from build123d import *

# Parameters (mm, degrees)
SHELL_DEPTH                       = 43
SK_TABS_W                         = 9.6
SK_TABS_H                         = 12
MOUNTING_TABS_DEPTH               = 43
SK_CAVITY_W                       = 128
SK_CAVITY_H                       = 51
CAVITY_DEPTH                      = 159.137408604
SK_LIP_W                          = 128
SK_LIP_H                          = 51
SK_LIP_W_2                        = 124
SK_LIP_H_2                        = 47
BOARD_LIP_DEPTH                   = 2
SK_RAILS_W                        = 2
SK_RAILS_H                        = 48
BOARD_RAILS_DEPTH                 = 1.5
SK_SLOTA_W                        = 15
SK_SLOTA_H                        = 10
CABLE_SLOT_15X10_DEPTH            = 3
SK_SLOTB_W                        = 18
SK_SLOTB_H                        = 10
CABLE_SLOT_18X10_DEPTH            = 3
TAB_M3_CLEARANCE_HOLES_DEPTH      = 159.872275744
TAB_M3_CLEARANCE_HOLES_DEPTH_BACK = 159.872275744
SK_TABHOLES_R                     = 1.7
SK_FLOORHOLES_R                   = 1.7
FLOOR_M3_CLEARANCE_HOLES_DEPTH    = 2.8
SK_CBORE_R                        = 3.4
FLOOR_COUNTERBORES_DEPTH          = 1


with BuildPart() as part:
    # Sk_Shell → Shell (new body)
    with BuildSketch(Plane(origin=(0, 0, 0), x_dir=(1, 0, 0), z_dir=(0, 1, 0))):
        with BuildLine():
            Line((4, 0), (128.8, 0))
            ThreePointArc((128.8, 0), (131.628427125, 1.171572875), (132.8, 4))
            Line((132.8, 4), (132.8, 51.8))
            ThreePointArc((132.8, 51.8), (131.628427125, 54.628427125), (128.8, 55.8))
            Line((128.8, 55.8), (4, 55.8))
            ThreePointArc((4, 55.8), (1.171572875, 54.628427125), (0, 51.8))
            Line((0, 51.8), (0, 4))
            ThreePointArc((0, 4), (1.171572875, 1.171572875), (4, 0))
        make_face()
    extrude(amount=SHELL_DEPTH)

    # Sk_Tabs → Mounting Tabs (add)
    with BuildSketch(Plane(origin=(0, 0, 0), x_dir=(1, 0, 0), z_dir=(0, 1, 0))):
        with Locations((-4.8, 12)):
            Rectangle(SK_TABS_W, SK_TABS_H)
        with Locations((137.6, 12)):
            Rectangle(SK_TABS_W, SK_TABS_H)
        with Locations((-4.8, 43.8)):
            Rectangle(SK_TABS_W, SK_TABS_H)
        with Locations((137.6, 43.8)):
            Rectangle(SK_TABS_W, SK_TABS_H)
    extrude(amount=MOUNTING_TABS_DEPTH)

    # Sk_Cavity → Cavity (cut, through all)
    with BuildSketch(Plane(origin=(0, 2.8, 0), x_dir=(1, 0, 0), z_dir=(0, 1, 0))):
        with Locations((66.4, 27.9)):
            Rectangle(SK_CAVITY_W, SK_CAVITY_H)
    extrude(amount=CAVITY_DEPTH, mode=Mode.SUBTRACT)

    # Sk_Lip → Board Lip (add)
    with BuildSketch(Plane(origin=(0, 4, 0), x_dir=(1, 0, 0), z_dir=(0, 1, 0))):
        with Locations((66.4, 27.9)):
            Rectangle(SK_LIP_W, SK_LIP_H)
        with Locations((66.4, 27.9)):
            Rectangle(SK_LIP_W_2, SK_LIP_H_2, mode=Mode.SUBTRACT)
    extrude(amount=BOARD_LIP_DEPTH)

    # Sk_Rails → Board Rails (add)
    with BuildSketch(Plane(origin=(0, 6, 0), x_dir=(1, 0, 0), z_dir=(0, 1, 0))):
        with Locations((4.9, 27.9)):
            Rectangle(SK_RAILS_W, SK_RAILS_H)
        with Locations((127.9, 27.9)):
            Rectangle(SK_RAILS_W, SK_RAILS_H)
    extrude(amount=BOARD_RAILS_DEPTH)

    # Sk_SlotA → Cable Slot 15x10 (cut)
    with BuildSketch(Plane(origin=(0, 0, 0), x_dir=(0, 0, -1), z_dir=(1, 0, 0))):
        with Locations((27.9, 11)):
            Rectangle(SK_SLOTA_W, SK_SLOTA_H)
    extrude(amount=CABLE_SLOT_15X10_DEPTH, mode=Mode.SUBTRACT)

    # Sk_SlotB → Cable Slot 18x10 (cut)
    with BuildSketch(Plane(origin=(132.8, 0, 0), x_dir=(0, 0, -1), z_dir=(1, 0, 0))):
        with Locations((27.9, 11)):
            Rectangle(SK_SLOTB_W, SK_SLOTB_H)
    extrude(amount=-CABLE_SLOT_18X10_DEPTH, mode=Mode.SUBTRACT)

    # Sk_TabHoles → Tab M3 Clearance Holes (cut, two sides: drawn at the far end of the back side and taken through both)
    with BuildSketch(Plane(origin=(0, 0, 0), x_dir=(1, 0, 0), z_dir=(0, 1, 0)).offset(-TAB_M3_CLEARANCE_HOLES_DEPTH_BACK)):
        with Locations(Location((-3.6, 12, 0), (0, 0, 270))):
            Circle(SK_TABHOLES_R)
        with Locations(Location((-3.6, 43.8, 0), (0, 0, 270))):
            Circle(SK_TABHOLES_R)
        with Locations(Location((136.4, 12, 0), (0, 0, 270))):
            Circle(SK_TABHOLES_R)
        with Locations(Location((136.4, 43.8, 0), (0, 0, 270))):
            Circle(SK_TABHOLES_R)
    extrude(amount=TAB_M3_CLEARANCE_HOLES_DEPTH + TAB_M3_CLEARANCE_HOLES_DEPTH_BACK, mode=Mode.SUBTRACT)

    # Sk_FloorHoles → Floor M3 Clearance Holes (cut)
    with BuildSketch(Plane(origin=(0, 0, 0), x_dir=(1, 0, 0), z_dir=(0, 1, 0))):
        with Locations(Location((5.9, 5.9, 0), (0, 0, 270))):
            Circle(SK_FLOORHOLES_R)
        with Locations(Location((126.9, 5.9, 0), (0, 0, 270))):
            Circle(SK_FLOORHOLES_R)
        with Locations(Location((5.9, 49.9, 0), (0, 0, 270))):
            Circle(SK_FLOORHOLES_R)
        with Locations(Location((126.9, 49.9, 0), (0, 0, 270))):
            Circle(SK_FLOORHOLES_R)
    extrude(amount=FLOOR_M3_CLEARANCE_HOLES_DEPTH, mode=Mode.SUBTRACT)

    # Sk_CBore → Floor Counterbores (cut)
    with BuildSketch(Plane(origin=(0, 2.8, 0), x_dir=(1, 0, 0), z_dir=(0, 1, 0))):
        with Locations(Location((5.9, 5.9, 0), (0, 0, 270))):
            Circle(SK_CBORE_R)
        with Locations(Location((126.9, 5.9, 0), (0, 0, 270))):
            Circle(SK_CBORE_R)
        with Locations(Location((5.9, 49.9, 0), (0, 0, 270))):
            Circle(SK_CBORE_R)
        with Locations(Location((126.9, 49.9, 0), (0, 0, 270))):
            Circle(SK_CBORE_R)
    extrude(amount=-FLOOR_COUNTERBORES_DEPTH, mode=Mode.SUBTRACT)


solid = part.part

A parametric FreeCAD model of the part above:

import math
import FreeCAD as App
import Part
import Sketcher

V = App.Vector
Q = App.Units.Quantity

doc = App.newDocument("Part")
body = doc.addObject("PartDesign::Body", "Body")

# Sketch on XZ plane
sketch1 = body.newObject("Sketcher::SketchObject", "Sketch")
sketch1.AttachmentSupport = (doc.getObject("XZ_Plane"), [""])
sketch1.MapMode = "FlatFace"
sketch1.addGeometry([
    Part.LineSegment(V(4, 0, 0), V(128.8, 0, 0)),  # 0
    Part.ArcOfCircle(Part.Circle(V(128.8, -4, 0), V(0, 0, 1), 4), math.radians(0), math.radians(90)),  # 1
    Part.LineSegment(V(132.8, -4, 0), V(132.8, -51.8, 0)),  # 2
    Part.ArcOfCircle(Part.Circle(V(128.8, -51.8, 0), V(0, 0, 1), 4), math.radians(-90), math.radians(0)),  # 3
    Part.LineSegment(V(128.8, -55.8, 0), V(4, -55.8, 0)),  # 4
    Part.ArcOfCircle(Part.Circle(V(4, -51.8, 0), V(0, 0, 1), 4), math.radians(180), math.radians(270)),  # 5
    Part.LineSegment(V(0, -51.8, 0), V(0, -4, 0)),  # 6
    Part.ArcOfCircle(Part.Circle(V(4, -4, 0), V(0, 0, 1), 4), math.radians(90), math.radians(180)),  # 7
], False)
sketch1.addConstraint([
    Sketcher.Constraint("Tangent", 0, 2, 1, 2),
    Sketcher.Constraint("Tangent", 1, 1, 2, 1),
    Sketcher.Constraint("Tangent", 2, 2, 3, 2),
    Sketcher.Constraint("Tangent", 3, 1, 4, 1),
    Sketcher.Constraint("Tangent", 4, 2, 5, 2),
    Sketcher.Constraint("Tangent", 5, 1, 6, 1),
    Sketcher.Constraint("Tangent", 6, 2, 7, 2),
    Sketcher.Constraint("Tangent", 7, 1, 0, 1),
    Sketcher.Constraint("Horizontal", 0),
    Sketcher.Constraint("Vertical", 2),
    Sketcher.Constraint("Horizontal", 4),
    Sketcher.Constraint("Vertical", 6),
    Sketcher.Constraint("Equal", 1, 3),
    Sketcher.Constraint("Equal", 3, 5),
    Sketcher.Constraint("Equal", 5, 7),
    Sketcher.Constraint("PointOnObject", 0, 2, -1),
    Sketcher.Constraint("PointOnObject", 5, 1, -2),
    Sketcher.Constraint("Radius", 1, Q("4 mm")),
    Sketcher.Constraint("DistanceX", 0, 1, 0, 2, Q("124.8 mm")),
    Sketcher.Constraint("DistanceY", 2, 2, 2, 1, Q("47.8 mm")),
])
pad1 = body.newObject("PartDesign::Pad", "Pad")
pad1.Profile = sketch1
pad1.Length = 43
pad1.Reversed = True

# Sketch on XZ plane
sketch2 = body.newObject("Sketcher::SketchObject", "Sketch001")
sketch2.AttachmentSupport = (doc.getObject("XZ_Plane"), [""])
sketch2.MapMode = "FlatFace"
sketch2.addGeometry([
    Part.LineSegment(V(-9.6, -18, 0), V(-9.6, -6, 0)),  # 0
    Part.LineSegment(V(-9.6, -6, 0), V(0, -6, 0)),  # 1
    Part.LineSegment(V(0, -6, 0), V(0, -18, 0)),  # 2
    Part.LineSegment(V(0, -18, 0), V(-9.6, -18, 0)),  # 3
    Part.LineSegment(V(132.8, -18, 0), V(132.8, -6, 0)),  # 4
    Part.LineSegment(V(132.8, -6, 0), V(142.4, -6, 0)),  # 5
    Part.LineSegment(V(142.4, -6, 0), V(142.4, -18, 0)),  # 6
    Part.LineSegment(V(142.4, -18, 0), V(132.8, -18, 0)),  # 7
    Part.LineSegment(V(-9.6, -49.8, 0), V(-9.6, -37.8, 0)),  # 8
    Part.LineSegment(V(-9.6, -37.8, 0), V(0, -37.8, 0)),  # 9
    Part.LineSegment(V(0, -37.8, 0), V(0, -49.8, 0)),  # 10
    Part.LineSegment(V(0, -49.8, 0), V(-9.6, -49.8, 0)),  # 11
    Part.LineSegment(V(132.8, -49.8, 0), V(132.8, -37.8, 0)),  # 12
    Part.LineSegment(V(132.8, -37.8, 0), V(142.4, -37.8, 0)),  # 13
    Part.LineSegment(V(142.4, -37.8, 0), V(142.4, -49.8, 0)),  # 14
    Part.LineSegment(V(142.4, -49.8, 0), V(132.8, -49.8, 0)),  # 15
], False)
sketch2.addConstraint([
    Sketcher.Constraint("Coincident", 0, 2, 1, 1),
    Sketcher.Constraint("Coincident", 1, 2, 2, 1),
    Sketcher.Constraint("Coincident", 2, 2, 3, 1),
    Sketcher.Constraint("Coincident", 3, 2, 0, 1),
    Sketcher.Constraint("Coincident", 4, 2, 5, 1),
    Sketcher.Constraint("Coincident", 5, 2, 6, 1),
    Sketcher.Constraint("Coincident", 6, 2, 7, 1),
    Sketcher.Constraint("Coincident", 7, 2, 4, 1),
    Sketcher.Constraint("Coincident", 8, 2, 9, 1),
    Sketcher.Constraint("Coincident", 9, 2, 10, 1),
    Sketcher.Constraint("Coincident", 10, 2, 11, 1),
    Sketcher.Constraint("Coincident", 11, 2, 8, 1),
    Sketcher.Constraint("Coincident", 12, 2, 13, 1),
    Sketcher.Constraint("Coincident", 13, 2, 14, 1),
    Sketcher.Constraint("Coincident", 14, 2, 15, 1),
    Sketcher.Constraint("Coincident", 15, 2, 12, 1),
    Sketcher.Constraint("Vertical", 0),
    Sketcher.Constraint("Horizontal", 1),
    Sketcher.Constraint("Vertical", 2),
    Sketcher.Constraint("Horizontal", 3),
    Sketcher.Constraint("Vertical", 4),
    Sketcher.Constraint("Horizontal", 5),
    Sketcher.Constraint("Vertical", 6),
    Sketcher.Constraint("Horizontal", 7),
    Sketcher.Constraint("Vertical", 8),
    Sketcher.Constraint("Horizontal", 9),
    Sketcher.Constraint("Vertical", 10),
    Sketcher.Constraint("Horizontal", 11),
    Sketcher.Constraint("Vertical", 12),
    Sketcher.Constraint("Horizontal", 13),
    Sketcher.Constraint("Vertical", 14),
    Sketcher.Constraint("Horizontal", 15),
    Sketcher.Constraint("PointOnObject", 1, 2, -2),
    Sketcher.Constraint("PointOnObject", 9, 2, -2),
    Sketcher.Constraint("Horizontal", 1, 2, 4, 2),
    Sketcher.Constraint("Horizontal", 3, 2, 6, 2),
    Sketcher.Constraint("Horizontal", 9, 2, 12, 2),
    Sketcher.Constraint("Horizontal", 11, 2, 14, 2),
    Sketcher.Constraint("Vertical", 3, 2, 8, 2),
    Sketcher.Constraint("Vertical", 7, 2, 12, 2),
    Sketcher.Constraint("Vertical", 6, 2, 13, 2),
    Sketcher.Constraint("Equal", 3, 5),
    Sketcher.Constraint("Equal", 6, 8),
    Sketcher.Constraint("DistanceY", 0, 1, 0, 2, Q("12 mm")),
    Sketcher.Constraint("DistanceX", 1, 1, 1, 2, Q("9.6 mm")),
    Sketcher.Constraint("DistanceY", 0, 2, -1, 1, Q("6 mm")),
    Sketcher.Constraint("DistanceX", 0, 2, 5, 2, Q("152 mm")),
    Sketcher.Constraint("DistanceY", 8, 2, -1, 1, Q("37.8 mm")),
])
pad2 = body.newObject("PartDesign::Pad", "Pad001")
pad2.Profile = sketch2
pad2.Length = 43
pad2.Reversed = True

# Sketch on XZ plane
sketch3 = body.newObject("Sketcher::SketchObject", "Sketch002")
sketch3.AttachmentSupport = (doc.getObject("XZ_Plane"), [""])
sketch3.MapMode = "FlatFace"
sketch3.AttachmentOffset = App.Placement(V(0, 0, -2.8), App.Rotation())
sketch3.addGeometry([
    Part.LineSegment(V(2.4, -53.4, 0), V(2.4, -2.4, 0)),
    Part.LineSegment(V(2.4, -2.4, 0), V(130.4, -2.4, 0)),
    Part.LineSegment(V(130.4, -2.4, 0), V(130.4, -53.4, 0)),
    Part.LineSegment(V(130.4, -53.4, 0), V(2.4, -53.4, 0)),
], False)
sketch3.addConstraint([
    Sketcher.Constraint("Coincident", 0, 2, 1, 1),
    Sketcher.Constraint("Coincident", 1, 2, 2, 1),
    Sketcher.Constraint("Coincident", 2, 2, 3, 1),
    Sketcher.Constraint("Coincident", 3, 2, 0, 1),
    Sketcher.Constraint("Vertical", 0),
    Sketcher.Constraint("Horizontal", 1),
    Sketcher.Constraint("Vertical", 2),
    Sketcher.Constraint("Horizontal", 3),
    Sketcher.Constraint("DistanceX", 1, 1, 1, 2, Q("128 mm")),
    Sketcher.Constraint("DistanceY", 0, 1, 0, 2, Q("51 mm")),
    Sketcher.Constraint("DistanceX", -1, 1, 0, 2, Q("2.4 mm")),
    Sketcher.Constraint("DistanceY", 0, 2, -1, 1, Q("2.4 mm")),
])
pocket1 = body.newObject("PartDesign::Pocket", "Pocket")
pocket1.Profile = sketch3
pocket1.Type = "ThroughAll"

# Sketch on XZ plane
sketch4 = body.newObject("Sketcher::SketchObject", "Sketch003")
sketch4.AttachmentSupport = (doc.getObject("XZ_Plane"), [""])
sketch4.MapMode = "FlatFace"
sketch4.AttachmentOffset = App.Placement(V(0, 0, -4), App.Rotation())
sketch4.addGeometry([
    Part.LineSegment(V(2.4, -53.4, 0), V(2.4, -2.4, 0)),  # 0
    Part.LineSegment(V(2.4, -2.4, 0), V(130.4, -2.4, 0)),  # 1
    Part.LineSegment(V(130.4, -2.4, 0), V(130.4, -53.4, 0)),  # 2
    Part.LineSegment(V(130.4, -53.4, 0), V(2.4, -53.4, 0)),  # 3
    Part.LineSegment(V(128.4, -4.4, 0), V(4.4, -4.4, 0)),  # 4
    Part.LineSegment(V(4.4, -4.4, 0), V(4.4, -51.4, 0)),  # 5
    Part.LineSegment(V(4.4, -51.4, 0), V(128.4, -51.4, 0)),  # 6
    Part.LineSegment(V(128.4, -51.4, 0), V(128.4, -4.4, 0)),  # 7
], False)
sketch4.addConstraint([
    Sketcher.Constraint("Coincident", 0, 2, 1, 1),
    Sketcher.Constraint("Coincident", 1, 2, 2, 1),
    Sketcher.Constraint("Coincident", 2, 2, 3, 1),
    Sketcher.Constraint("Coincident", 3, 2, 0, 1),
    Sketcher.Constraint("Coincident", 4, 2, 5, 1),
    Sketcher.Constraint("Coincident", 5, 2, 6, 1),
    Sketcher.Constraint("Coincident", 6, 2, 7, 1),
    Sketcher.Constraint("Coincident", 7, 2, 4, 1),
    Sketcher.Constraint("Vertical", 0),
    Sketcher.Constraint("Horizontal", 1),
    Sketcher.Constraint("Vertical", 2),
    Sketcher.Constraint("Horizontal", 3),
    Sketcher.Constraint("Horizontal", 4),
    Sketcher.Constraint("Vertical", 5),
    Sketcher.Constraint("Horizontal", 6),
    Sketcher.Constraint("Vertical", 7),
    Sketcher.Constraint("DistanceX", 1, 1, 1, 2, Q("128 mm")),
    Sketcher.Constraint("DistanceX", 4, 2, 4, 1, Q("124 mm")),
    Sketcher.Constraint("DistanceY", 0, 1, 0, 2, Q("51 mm")),
    Sketcher.Constraint("DistanceY", 5, 2, 5, 1, Q("47 mm")),
    Sketcher.Constraint("DistanceX", 0, 2, 4, 2, Q("2 mm")),
    Sketcher.Constraint("DistanceY", 4, 2, 0, 2, Q("2 mm")),
    Sketcher.Constraint("DistanceX", -1, 1, 0, 2, Q("2.4 mm")),
    Sketcher.Constraint("DistanceY", 0, 2, -1, 1, Q("2.4 mm")),
])
pad3 = body.newObject("PartDesign::Pad", "Pad002")
pad3.Profile = sketch4
pad3.Length = 2
pad3.Reversed = True

# Sketch on XZ plane
sketch5 = body.newObject("Sketcher::SketchObject", "Sketch004")
sketch5.AttachmentSupport = (doc.getObject("XZ_Plane"), [""])
sketch5.MapMode = "FlatFace"
sketch5.AttachmentOffset = App.Placement(V(0, 0, -6), App.Rotation())
sketch5.addGeometry([
    Part.LineSegment(V(3.9, -51.9, 0), V(3.9, -3.9, 0)),  # 0
    Part.LineSegment(V(3.9, -3.9, 0), V(5.9, -3.9, 0)),  # 1
    Part.LineSegment(V(5.9, -3.9, 0), V(5.9, -51.9, 0)),  # 2
    Part.LineSegment(V(5.9, -51.9, 0), V(3.9, -51.9, 0)),  # 3
    Part.LineSegment(V(126.9, -51.9, 0), V(126.9, -3.9, 0)),  # 4
    Part.LineSegment(V(126.9, -3.9, 0), V(128.9, -3.9, 0)),  # 5
    Part.LineSegment(V(128.9, -3.9, 0), V(128.9, -51.9, 0)),  # 6
    Part.LineSegment(V(128.9, -51.9, 0), V(126.9, -51.9, 0)),  # 7
], False)
sketch5.addConstraint([
    Sketcher.Constraint("Coincident", 0, 2, 1, 1),
    Sketcher.Constraint("Coincident", 1, 2, 2, 1),
    Sketcher.Constraint("Coincident", 2, 2, 3, 1),
    Sketcher.Constraint("Coincident", 3, 2, 0, 1),
    Sketcher.Constraint("Coincident", 4, 2, 5, 1),
    Sketcher.Constraint("Coincident", 5, 2, 6, 1),
    Sketcher.Constraint("Coincident", 6, 2, 7, 1),
    Sketcher.Constraint("Coincident", 7, 2, 4, 1),
    Sketcher.Constraint("Vertical", 0),
    Sketcher.Constraint("Horizontal", 1),
    Sketcher.Constraint("Vertical", 2),
    Sketcher.Constraint("Horizontal", 3),
    Sketcher.Constraint("Vertical", 4),
    Sketcher.Constraint("Horizontal", 5),
    Sketcher.Constraint("Vertical", 6),
    Sketcher.Constraint("Horizontal", 7),
    Sketcher.Constraint("Horizontal", 1, 2, 4, 2),
    Sketcher.Constraint("Horizontal", 3, 2, 6, 2),
    Sketcher.Constraint("Equal", 3, 5),
    Sketcher.Constraint("DistanceX", 1, 1, 1, 2, Q("2 mm")),
    Sketcher.Constraint("DistanceY", 0, 1, 0, 2, Q("48 mm")),
    Sketcher.Constraint("DistanceX", 1, 2, 4, 2, Q("121 mm")),
    Sketcher.Constraint("DistanceX", -1, 1, 0, 2, Q("3.9 mm")),
    Sketcher.Constraint("DistanceY", 0, 2, -1, 1, Q("3.9 mm")),
])
pad4 = body.newObject("PartDesign::Pad", "Pad003")
pad4.Profile = sketch5
pad4.Length = 1.5
pad4.Reversed = True

# Sketch on YZ plane
sketch6 = body.newObject("Sketcher::SketchObject", "Sketch005")
sketch6.AttachmentSupport = (doc.getObject("YZ_Plane"), [""])
sketch6.MapMode = "FlatFace"
sketch6.addGeometry([
    Part.LineSegment(V(16, -20.4, 0), V(6, -20.4, 0)),
    Part.LineSegment(V(6, -20.4, 0), V(6, -35.4, 0)),
    Part.LineSegment(V(6, -35.4, 0), V(16, -35.4, 0)),
    Part.LineSegment(V(16, -35.4, 0), V(16, -20.4, 0)),
], False)
sketch6.addConstraint([
    Sketcher.Constraint("Coincident", 0, 2, 1, 1),
    Sketcher.Constraint("Coincident", 1, 2, 2, 1),
    Sketcher.Constraint("Coincident", 2, 2, 3, 1),
    Sketcher.Constraint("Coincident", 3, 2, 0, 1),
    Sketcher.Constraint("Horizontal", 0),
    Sketcher.Constraint("Vertical", 1),
    Sketcher.Constraint("Horizontal", 2),
    Sketcher.Constraint("Vertical", 3),
    Sketcher.Constraint("DistanceX", 0, 2, 0, 1, Q("10 mm")),
    Sketcher.Constraint("DistanceY", 1, 2, 1, 1, Q("15 mm")),
    Sketcher.Constraint("DistanceX", -1, 1, 0, 2, Q("6 mm")),
    Sketcher.Constraint("DistanceY", 0, 2, -1, 1, Q("20.4 mm")),
])
pocket2 = body.newObject("PartDesign::Pocket", "Pocket001")
pocket2.Profile = sketch6
pocket2.Length = 3
pocket2.Reversed = True

# Sketch on YZ plane
sketch7 = body.newObject("Sketcher::SketchObject", "Sketch006")
sketch7.AttachmentSupport = (doc.getObject("YZ_Plane"), [""])
sketch7.MapMode = "FlatFace"
sketch7.AttachmentOffset = App.Placement(V(0, 0, 132.8), App.Rotation())
sketch7.addGeometry([
    Part.LineSegment(V(16, -18.9, 0), V(6, -18.9, 0)),
    Part.LineSegment(V(6, -18.9, 0), V(6, -36.9, 0)),
    Part.LineSegment(V(6, -36.9, 0), V(16, -36.9, 0)),
    Part.LineSegment(V(16, -36.9, 0), V(16, -18.9, 0)),
], False)
sketch7.addConstraint([
    Sketcher.Constraint("Coincident", 0, 2, 1, 1),
    Sketcher.Constraint("Coincident", 1, 2, 2, 1),
    Sketcher.Constraint("Coincident", 2, 2, 3, 1),
    Sketcher.Constraint("Coincident", 3, 2, 0, 1),
    Sketcher.Constraint("Horizontal", 0),
    Sketcher.Constraint("Vertical", 1),
    Sketcher.Constraint("Horizontal", 2),
    Sketcher.Constraint("Vertical", 3),
    Sketcher.Constraint("DistanceX", 0, 2, 0, 1, Q("10 mm")),
    Sketcher.Constraint("DistanceY", 1, 2, 1, 1, Q("18 mm")),
    Sketcher.Constraint("DistanceX", -1, 1, 0, 2, Q("6 mm")),
    Sketcher.Constraint("DistanceY", 0, 2, -1, 1, Q("18.9 mm")),
])
pocket3 = body.newObject("PartDesign::Pocket", "Pocket002")
pocket3.Profile = sketch7
pocket3.Length = 3

# Sketch on XZ plane
sketch8 = body.newObject("Sketcher::SketchObject", "Sketch007")
sketch8.AttachmentSupport = (doc.getObject("XZ_Plane"), [""])
sketch8.MapMode = "FlatFace"
sketch8.addGeometry([
    Part.Circle(V(-3.6, -12, 0), V(0, 0, 1), 1.7),
    Part.Circle(V(-3.6, -43.8, 0), V(0, 0, 1), 1.7),
    Part.Circle(V(136.4, -12, 0), V(0, 0, 1), 1.7),
    Part.Circle(V(136.4, -43.8, 0), V(0, 0, 1), 1.7),
], False)
sketch8.addConstraint([
    Sketcher.Constraint("Equal", 0, 1),
    Sketcher.Constraint("Equal", 1, 2),
    Sketcher.Constraint("Equal", 2, 3),
    Sketcher.Constraint("Horizontal", 0, 3, 2, 3),
    Sketcher.Constraint("Horizontal", 1, 3, 3, 3),
    Sketcher.Constraint("Vertical", 0, 3, 1, 3),
    Sketcher.Constraint("Vertical", 2, 3, 3, 3),
    Sketcher.Constraint("Diameter", 0, Q("3.4 mm")),
    Sketcher.Constraint("DistanceY", 0, 3, -1, 1, Q("12 mm")),
    Sketcher.Constraint("DistanceX", 0, 3, 2, 3, Q("140 mm")),
    Sketcher.Constraint("DistanceX", 0, 3, -1, 1, Q("3.6 mm")),
    Sketcher.Constraint("DistanceY", 1, 3, -1, 1, Q("43.8 mm")),
])
pocket4 = body.newObject("PartDesign::Pocket", "Pocket003")
pocket4.Profile = sketch8
pocket4.Type = "ThroughAll"
pocket4.Midplane = True

# Sketch on XZ plane
sketch9 = body.newObject("Sketcher::SketchObject", "Sketch008")
sketch9.AttachmentSupport = (doc.getObject("XZ_Plane"), [""])
sketch9.MapMode = "FlatFace"
sketch9.addGeometry([
    Part.Circle(V(5.9, -5.9, 0), V(0, 0, 1), 1.7),
    Part.Circle(V(126.9, -5.9, 0), V(0, 0, 1), 1.7),
    Part.Circle(V(5.9, -49.9, 0), V(0, 0, 1), 1.7),
    Part.Circle(V(126.9, -49.9, 0), V(0, 0, 1), 1.7),
], False)
sketch9.addConstraint([
    Sketcher.Constraint("Equal", 0, 1),
    Sketcher.Constraint("Equal", 1, 2),
    Sketcher.Constraint("Equal", 2, 3),
    Sketcher.Constraint("Horizontal", 0, 3, 1, 3),
    Sketcher.Constraint("Horizontal", 2, 3, 3, 3),
    Sketcher.Constraint("Vertical", 0, 3, 2, 3),
    Sketcher.Constraint("Vertical", 1, 3, 3, 3),
    Sketcher.Constraint("Diameter", 0, Q("3.4 mm")),
    Sketcher.Constraint("DistanceX", 0, 3, 1, 3, Q("121 mm")),
    Sketcher.Constraint("DistanceY", 2, 3, 0, 3, Q("44 mm")),
    Sketcher.Constraint("DistanceX", -1, 1, 0, 3, Q("5.9 mm")),
    Sketcher.Constraint("DistanceY", 0, 3, -1, 1, Q("5.9 mm")),
])
pocket5 = body.newObject("PartDesign::Pocket", "Pocket004")
pocket5.Profile = sketch9
pocket5.Length = 2.8

# Sketch on XZ plane
sketch10 = body.newObject("Sketcher::SketchObject", "Sketch009")
sketch10.AttachmentSupport = (doc.getObject("XZ_Plane"), [""])
sketch10.MapMode = "FlatFace"
sketch10.AttachmentOffset = App.Placement(V(0, 0, -2.8), App.Rotation())
sketch10.addGeometry([
    Part.Circle(V(5.9, -5.9, 0), V(0, 0, 1), 3.4),
    Part.Circle(V(126.9, -5.9, 0), V(0, 0, 1), 3.4),
    Part.Circle(V(5.9, -49.9, 0), V(0, 0, 1), 3.4),
    Part.Circle(V(126.9, -49.9, 0), V(0, 0, 1), 3.4),
], False)
sketch10.addConstraint([
    Sketcher.Constraint("Equal", 0, 1),
    Sketcher.Constraint("Equal", 1, 2),
    Sketcher.Constraint("Equal", 2, 3),
    Sketcher.Constraint("Horizontal", 0, 3, 1, 3),
    Sketcher.Constraint("Horizontal", 2, 3, 3, 3),
    Sketcher.Constraint("Vertical", 0, 3, 2, 3),
    Sketcher.Constraint("Vertical", 1, 3, 3, 3),
    Sketcher.Constraint("Diameter", 0, Q("6.8 mm")),
    Sketcher.Constraint("DistanceX", 0, 3, 1, 3, Q("121 mm")),
    Sketcher.Constraint("DistanceY", 2, 3, 0, 3, Q("44 mm")),
    Sketcher.Constraint("DistanceX", -1, 1, 0, 3, Q("5.9 mm")),
    Sketcher.Constraint("DistanceY", 0, 3, -1, 1, Q("5.9 mm")),
])
pocket6 = body.newObject("PartDesign::Pocket", "Pocket005")
pocket6.Profile = sketch10
pocket6.Length = 1
pocket6.Reversed = True

doc.recompute()
